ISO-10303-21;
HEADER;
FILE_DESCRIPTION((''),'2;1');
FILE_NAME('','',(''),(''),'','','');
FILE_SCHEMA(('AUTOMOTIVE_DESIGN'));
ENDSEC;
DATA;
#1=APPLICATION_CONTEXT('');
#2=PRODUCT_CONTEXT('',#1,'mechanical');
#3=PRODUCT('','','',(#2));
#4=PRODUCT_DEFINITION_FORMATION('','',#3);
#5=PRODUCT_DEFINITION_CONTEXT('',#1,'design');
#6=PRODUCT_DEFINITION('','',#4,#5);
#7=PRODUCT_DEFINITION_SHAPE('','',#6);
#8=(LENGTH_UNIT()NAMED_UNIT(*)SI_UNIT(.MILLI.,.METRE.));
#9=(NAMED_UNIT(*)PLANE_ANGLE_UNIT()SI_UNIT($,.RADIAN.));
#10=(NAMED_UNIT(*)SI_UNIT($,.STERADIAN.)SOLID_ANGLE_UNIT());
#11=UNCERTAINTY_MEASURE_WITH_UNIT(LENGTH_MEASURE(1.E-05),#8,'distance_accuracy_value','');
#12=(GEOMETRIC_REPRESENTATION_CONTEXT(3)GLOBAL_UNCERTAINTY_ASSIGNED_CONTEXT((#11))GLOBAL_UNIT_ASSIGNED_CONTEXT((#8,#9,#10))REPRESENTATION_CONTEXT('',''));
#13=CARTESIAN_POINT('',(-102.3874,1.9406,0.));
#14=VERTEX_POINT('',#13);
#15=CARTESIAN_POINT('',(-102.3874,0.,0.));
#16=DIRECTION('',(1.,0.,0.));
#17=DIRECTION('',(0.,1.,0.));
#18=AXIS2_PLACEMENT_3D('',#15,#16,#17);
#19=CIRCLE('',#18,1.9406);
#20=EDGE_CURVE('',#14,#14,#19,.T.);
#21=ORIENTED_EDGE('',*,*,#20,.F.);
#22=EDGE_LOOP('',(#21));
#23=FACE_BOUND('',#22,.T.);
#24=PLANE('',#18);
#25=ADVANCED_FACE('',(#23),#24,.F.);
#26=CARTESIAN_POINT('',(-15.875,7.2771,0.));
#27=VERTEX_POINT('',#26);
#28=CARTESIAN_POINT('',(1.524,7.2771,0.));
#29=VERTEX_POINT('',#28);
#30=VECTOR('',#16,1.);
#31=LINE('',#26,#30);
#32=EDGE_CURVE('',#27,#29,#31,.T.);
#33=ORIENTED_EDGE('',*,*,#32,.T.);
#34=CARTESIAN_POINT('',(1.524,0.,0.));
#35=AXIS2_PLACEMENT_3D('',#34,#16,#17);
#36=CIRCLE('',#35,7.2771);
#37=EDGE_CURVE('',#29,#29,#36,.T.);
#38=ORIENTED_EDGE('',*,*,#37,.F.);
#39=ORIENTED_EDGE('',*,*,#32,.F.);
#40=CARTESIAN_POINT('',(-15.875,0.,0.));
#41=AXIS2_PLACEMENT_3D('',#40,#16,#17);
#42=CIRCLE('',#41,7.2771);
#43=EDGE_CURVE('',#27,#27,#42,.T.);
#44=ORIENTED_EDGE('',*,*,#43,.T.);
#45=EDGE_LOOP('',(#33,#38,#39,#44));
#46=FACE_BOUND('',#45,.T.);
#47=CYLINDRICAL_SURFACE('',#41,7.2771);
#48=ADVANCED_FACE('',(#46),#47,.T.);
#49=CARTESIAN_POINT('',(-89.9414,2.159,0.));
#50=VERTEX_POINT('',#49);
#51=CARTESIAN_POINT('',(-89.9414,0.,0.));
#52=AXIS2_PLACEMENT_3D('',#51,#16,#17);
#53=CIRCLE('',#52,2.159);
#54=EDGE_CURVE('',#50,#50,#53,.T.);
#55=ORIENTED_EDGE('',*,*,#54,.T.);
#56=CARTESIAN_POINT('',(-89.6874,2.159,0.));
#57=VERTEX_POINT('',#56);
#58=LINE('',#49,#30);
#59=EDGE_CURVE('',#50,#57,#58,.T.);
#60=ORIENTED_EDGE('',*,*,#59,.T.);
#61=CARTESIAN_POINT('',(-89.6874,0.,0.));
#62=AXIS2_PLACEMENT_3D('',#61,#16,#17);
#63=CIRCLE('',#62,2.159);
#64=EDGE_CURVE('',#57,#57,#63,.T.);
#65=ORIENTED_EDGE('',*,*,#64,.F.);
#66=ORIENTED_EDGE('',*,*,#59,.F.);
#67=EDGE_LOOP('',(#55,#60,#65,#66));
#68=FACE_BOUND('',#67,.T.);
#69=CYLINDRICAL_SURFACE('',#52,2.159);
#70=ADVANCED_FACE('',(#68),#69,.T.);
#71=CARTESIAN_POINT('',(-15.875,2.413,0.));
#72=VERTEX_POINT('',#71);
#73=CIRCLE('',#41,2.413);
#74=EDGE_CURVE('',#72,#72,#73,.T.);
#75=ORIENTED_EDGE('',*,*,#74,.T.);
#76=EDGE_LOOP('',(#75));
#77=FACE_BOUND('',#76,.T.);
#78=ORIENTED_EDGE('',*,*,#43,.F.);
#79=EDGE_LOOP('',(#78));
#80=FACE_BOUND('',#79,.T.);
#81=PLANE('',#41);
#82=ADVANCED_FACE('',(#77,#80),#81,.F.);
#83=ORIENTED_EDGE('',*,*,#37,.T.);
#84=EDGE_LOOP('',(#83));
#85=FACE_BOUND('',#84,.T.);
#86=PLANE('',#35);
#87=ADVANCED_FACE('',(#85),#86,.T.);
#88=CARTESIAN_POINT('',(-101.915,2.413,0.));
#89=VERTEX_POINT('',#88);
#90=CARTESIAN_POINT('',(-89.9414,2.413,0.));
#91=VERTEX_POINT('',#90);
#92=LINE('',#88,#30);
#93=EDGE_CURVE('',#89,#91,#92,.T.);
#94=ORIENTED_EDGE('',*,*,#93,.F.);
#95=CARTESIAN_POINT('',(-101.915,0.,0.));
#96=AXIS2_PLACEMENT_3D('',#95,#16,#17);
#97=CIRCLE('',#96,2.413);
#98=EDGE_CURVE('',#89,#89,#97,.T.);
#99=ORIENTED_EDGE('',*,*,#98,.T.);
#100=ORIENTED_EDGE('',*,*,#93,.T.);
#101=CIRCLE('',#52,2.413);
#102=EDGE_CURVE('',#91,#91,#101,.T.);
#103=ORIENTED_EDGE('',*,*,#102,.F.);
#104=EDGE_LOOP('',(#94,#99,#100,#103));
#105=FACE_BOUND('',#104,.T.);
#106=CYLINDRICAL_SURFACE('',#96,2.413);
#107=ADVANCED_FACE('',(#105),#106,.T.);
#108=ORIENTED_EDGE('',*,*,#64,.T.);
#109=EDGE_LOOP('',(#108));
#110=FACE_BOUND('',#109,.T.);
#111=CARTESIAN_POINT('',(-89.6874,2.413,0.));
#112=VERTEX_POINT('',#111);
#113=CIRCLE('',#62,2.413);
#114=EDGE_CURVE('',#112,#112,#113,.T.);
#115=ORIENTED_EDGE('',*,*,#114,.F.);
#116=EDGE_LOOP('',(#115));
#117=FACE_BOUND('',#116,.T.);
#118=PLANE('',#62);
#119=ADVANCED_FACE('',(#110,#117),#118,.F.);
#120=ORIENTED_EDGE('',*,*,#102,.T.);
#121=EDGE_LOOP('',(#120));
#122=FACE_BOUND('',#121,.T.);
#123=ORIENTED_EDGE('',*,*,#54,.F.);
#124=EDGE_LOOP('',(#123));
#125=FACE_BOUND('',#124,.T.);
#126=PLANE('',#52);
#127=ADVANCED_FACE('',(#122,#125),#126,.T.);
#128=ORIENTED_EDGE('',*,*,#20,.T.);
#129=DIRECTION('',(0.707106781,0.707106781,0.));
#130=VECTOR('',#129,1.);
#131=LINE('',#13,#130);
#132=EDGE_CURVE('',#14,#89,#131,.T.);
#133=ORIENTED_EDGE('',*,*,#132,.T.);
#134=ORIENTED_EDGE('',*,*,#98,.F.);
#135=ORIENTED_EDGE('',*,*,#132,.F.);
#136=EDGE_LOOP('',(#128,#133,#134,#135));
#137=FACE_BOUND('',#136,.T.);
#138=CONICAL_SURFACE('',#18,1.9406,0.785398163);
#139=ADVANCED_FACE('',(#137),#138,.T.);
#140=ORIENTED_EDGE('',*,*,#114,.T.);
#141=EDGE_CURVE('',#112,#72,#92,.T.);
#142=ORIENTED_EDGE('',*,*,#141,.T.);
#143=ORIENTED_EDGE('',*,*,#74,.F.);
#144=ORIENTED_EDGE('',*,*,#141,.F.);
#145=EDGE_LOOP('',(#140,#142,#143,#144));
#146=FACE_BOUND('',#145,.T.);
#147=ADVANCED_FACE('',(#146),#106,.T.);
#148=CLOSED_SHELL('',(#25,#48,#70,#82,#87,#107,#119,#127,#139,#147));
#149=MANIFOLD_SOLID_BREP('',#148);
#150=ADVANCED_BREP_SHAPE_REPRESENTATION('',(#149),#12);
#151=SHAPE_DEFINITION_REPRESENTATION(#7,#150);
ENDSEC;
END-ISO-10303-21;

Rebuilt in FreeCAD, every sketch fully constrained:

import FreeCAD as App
import Part
import Sketcher
Q = App.Units.Quantity


def add_polygon(sketch, points):
    """Adds a closed chain of lines whose ends are joined by coincident constraints."""
    first, n = sketch.GeometryCount, len(points)
    for a, b in zip(points, points[1:] + points[:1]):
        sketch.addGeometry(Part.LineSegment(App.Vector(*a, 0), App.Vector(*b, 0)), False)
    for i in range(n):
        sketch.addConstraint(Sketcher.Constraint("Coincident", first + i, 2, first + (i + 1) % n, 1))

doc = App.newDocument("Part")
params = doc.addObject("Spreadsheet::Sheet", "Params")
for row, (alias, value) in enumerate([
    ("sketch1_width", "4.031 in"),
    ("sketch1_height", "0.095 in"),
    ("revolution_angle", "360 deg"),
    ("sketch2_width", "0.01 in"),
    ("groove_angle", "360 deg"),
    ("sketch3_width", "0.685 in"),
    ("revolution2_angle", "360 deg"),
], start=1):
    params.set(f"A{row}", alias)
    params.set(f"B{row}", "=" + value)
    params.setAlias(f"B{row}", alias)

body = doc.addObject("PartDesign::Body", "Body")

# Sketch on XY plane
sketch1 = body.newObject("Sketcher::SketchObject", "Sketch")
sketch1.AttachmentSupport = (doc.getObject("XY_Plane"), [""])
sketch1.MapMode = "FlatFace"
add_polygon(sketch1, [(-102.4, 0), (0, 0), (0, 2.4), (-101.9, 2.4), (-102.4, 1.9)])  # lines 0-4
sketch1.addConstraint([
    Sketcher.Constraint("Horizontal", 0),
    Sketcher.Constraint("Vertical", 1),
    Sketcher.Constraint("Horizontal", 2),
    Sketcher.Constraint("Vertical", 4),
    Sketcher.Constraint("Coincident", 0, 2, -1, 1),
    Sketcher.Constraint("Angle", 3, Q("-135 deg")),
    Sketcher.Constraint("DistanceX", 0, 1, 0, 2, Q("4.031 in")),
    Sketcher.Constraint("DistanceY", 1, 1, 1, 2, Q("0.095 in")),
    Sketcher.Constraint("DistanceX", 2, 2, 2, 1, Q("4.0124 in")),
])
sketch1.setExpression("Constraints[11]", "Params.sketch1_width")
sketch1.setExpression("Constraints[12]", "Params.sketch1_height")
revolution = body.newObject("PartDesign::Revolution", "Revolution")
revolution.Profile = sketch1
revolution.ReferenceAxis = (sketch1, ["H_Axis"])
revolution.setExpression("Angle", "Params.revolution_angle")

# Sketch on XY plane
sketch2 = body.newObject("Sketcher::SketchObject", "Sketch001")
sketch2.AttachmentSupport = (doc.getObject("XY_Plane"), [""])
sketch2.MapMode = "FlatFace"
add_polygon(sketch2, [(-89.69, 2.41), (-89.94, 2.41), (-89.94, 2.16), (-89.69, 2.16)])  # lines 0-3
sketch2.addConstraint([
    Sketcher.Constraint("Horizontal", 0),
    Sketcher.Constraint("Vertical", 1),
    Sketcher.Constraint("Horizontal", 2),
    Sketcher.Constraint("Vertical", 3),
    Sketcher.Constraint("Equal", 2, 1),
    Sketcher.Constraint("DistanceX", 0, 2, 0, 1, Q("0.01 in")),
    Sketcher.Constraint("DistanceX", 0, 2, -1, 1, Q("3.541 in")),
    Sketcher.Constraint("DistanceY", -1, 1, 0, 2, Q("0.095 in")),
])
sketch2.setExpression("Constraints[9]", "Params.sketch2_width")
groove = body.newObject("PartDesign::Groove", "Groove")
groove.Profile = sketch2
groove.ReferenceAxis = (sketch2, ["H_Axis"])
groove.setExpression("Angle", "Params.groove_angle")

# Sketch on XY plane
sketch3 = body.newObject("Sketcher::SketchObject", "Sketch002")
sketch3.AttachmentSupport = (doc.getObject("XY_Plane"), [""])
sketch3.MapMode = "FlatFace"
add_polygon(sketch3, [(-16, 0), (2, 0), (2, 7), (-16, 7)])  # lines 0-3
sketch3.addConstraint([
    Sketcher.Constraint("Horizontal", 0),
    Sketcher.Constraint("Vertical", 1),
    Sketcher.Constraint("Horizontal", 2),
    Sketcher.Constraint("Vertical", 3),
    Sketcher.Constraint("PointOnObject", 0, 2, -1),
    Sketcher.Constraint("DistanceX", 0, 1, 0, 2, Q("0.685 in")),
    Sketcher.Constraint("DistanceX", -1, 1, 0, 2, Q("0.06 in")),
    Sketcher.Constraint("DistanceY", 1, 1, 1, 2, Q("0.2865 in")),
])
sketch3.setExpression("Constraints[9]", "Params.sketch3_width")
revolution2 = body.newObject("PartDesign::Revolution", "Revolution001")
revolution2.Profile = sketch3
revolution2.ReferenceAxis = (sketch3, ["H_Axis"])
revolution2.setExpression("Angle", "Params.revolution2_angle")

doc.recompute()
